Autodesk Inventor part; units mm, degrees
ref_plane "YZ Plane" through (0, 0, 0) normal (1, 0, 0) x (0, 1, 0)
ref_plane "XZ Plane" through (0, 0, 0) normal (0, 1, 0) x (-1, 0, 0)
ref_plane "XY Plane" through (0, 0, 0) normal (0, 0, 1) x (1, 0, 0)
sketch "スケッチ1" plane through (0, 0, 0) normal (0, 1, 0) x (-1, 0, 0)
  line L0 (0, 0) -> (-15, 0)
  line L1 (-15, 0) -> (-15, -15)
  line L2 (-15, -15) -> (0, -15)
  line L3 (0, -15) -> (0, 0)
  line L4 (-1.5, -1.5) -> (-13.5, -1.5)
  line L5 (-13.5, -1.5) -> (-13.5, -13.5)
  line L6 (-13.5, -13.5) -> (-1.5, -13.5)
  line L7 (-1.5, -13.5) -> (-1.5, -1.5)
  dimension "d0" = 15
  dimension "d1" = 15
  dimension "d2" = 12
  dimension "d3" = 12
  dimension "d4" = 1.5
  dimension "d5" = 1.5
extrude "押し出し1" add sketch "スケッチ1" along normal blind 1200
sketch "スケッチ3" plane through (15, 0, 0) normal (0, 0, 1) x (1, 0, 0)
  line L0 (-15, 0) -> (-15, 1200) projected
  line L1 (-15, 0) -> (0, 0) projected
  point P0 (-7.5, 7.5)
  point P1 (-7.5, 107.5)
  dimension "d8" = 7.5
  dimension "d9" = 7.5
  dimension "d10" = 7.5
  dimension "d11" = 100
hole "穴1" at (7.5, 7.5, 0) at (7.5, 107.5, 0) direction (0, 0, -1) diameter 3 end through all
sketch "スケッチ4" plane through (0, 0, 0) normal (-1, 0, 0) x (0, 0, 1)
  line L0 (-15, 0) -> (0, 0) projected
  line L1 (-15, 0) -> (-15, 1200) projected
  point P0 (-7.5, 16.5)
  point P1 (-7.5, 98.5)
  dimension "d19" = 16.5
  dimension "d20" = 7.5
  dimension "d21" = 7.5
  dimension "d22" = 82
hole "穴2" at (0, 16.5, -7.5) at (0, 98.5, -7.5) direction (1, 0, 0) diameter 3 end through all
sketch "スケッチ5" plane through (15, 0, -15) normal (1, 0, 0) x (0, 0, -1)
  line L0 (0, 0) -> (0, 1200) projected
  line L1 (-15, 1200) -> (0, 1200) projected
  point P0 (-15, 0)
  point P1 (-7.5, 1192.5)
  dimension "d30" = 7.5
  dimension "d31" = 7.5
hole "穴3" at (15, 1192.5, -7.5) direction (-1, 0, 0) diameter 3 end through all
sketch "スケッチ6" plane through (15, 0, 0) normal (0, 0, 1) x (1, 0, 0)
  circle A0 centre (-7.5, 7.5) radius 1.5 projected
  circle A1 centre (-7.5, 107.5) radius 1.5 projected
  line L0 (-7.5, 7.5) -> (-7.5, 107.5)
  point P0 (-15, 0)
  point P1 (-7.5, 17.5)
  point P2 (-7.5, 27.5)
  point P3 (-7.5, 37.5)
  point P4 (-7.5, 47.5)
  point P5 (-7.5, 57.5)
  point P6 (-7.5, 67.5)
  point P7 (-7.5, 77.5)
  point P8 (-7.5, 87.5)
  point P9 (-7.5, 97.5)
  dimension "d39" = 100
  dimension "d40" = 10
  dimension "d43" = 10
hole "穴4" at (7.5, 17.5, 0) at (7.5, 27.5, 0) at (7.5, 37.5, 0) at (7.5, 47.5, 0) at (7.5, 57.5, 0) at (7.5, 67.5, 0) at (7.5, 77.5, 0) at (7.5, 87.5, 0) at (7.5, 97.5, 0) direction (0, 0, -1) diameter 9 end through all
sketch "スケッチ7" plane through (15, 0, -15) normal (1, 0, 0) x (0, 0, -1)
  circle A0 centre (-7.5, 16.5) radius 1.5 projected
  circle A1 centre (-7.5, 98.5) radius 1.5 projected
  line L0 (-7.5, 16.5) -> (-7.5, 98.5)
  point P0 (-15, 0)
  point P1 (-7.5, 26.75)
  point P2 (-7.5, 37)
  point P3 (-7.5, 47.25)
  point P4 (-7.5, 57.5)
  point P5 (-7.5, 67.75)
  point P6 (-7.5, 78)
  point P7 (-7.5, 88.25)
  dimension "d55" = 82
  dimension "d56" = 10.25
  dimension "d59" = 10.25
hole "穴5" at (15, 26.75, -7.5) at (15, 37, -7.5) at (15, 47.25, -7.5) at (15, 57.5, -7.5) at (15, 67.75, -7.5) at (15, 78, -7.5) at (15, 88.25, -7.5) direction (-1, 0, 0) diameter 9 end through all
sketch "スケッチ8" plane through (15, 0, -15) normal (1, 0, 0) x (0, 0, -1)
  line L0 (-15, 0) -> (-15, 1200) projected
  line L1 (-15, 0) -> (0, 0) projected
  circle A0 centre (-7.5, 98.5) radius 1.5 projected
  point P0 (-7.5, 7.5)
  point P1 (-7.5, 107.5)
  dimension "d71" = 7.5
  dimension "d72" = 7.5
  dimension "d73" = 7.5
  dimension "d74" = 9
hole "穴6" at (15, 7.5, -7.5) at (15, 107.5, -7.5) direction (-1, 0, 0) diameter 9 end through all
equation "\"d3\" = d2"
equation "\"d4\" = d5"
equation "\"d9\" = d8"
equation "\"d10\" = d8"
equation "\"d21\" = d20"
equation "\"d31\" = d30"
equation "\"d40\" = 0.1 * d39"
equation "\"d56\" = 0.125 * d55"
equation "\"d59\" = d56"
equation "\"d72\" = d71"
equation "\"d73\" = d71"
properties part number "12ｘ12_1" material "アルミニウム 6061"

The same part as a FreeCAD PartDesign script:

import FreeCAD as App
import Part
import Sketcher
from FreeCAD import Vector

doc = App.newDocument("Part")
body = doc.addObject("PartDesign::Body", "Body")

# Sketch on XZ plane
sketch1 = doc.addObject("Sketcher::SketchObject", "Sketch")
body.addObject(sketch1)
sketch1.AttachmentSupport = (doc.XZ_Plane, [""])
sketch1.MapMode = "FlatFace"
sketch1.addGeometry(Part.LineSegment(Vector(0, -15, 0), Vector(0, 0, 0)), False)
sketch1.addGeometry(Part.LineSegment(Vector(0, 0, 0), Vector(15, 0, 0)), False)
sketch1.addGeometry(Part.LineSegment(Vector(15, 0, 0), Vector(15, -15, 0)), False)
sketch1.addGeometry(Part.LineSegment(Vector(15, -15, 0), Vector(0, -15, 0)), False)
sketch1.addGeometry(Part.LineSegment(Vector(13.5, -1.5, 0), Vector(1.5, -1.5, 0)), False)
sketch1.addGeometry(Part.LineSegment(Vector(1.5, -1.5, 0), Vector(1.5, -13.5, 0)), False)
sketch1.addGeometry(Part.LineSegment(Vector(1.5, -13.5, 0), Vector(13.5, -13.5, 0)), False)
sketch1.addGeometry(Part.LineSegment(Vector(13.5, -13.5, 0), Vector(13.5, -1.5, 0)), False)
sketch1.addConstraint(Sketcher.Constraint("Coincident", 0, 2, 1, 1))
sketch1.addConstraint(Sketcher.Constraint("Coincident", 1, 2, 2, 1))
sketch1.addConstraint(Sketcher.Constraint("Coincident", 2, 2, 3, 1))
sketch1.addConstraint(Sketcher.Constraint("Coincident", 3, 2, 0, 1))
sketch1.addConstraint(Sketcher.Constraint("Coincident", 4, 2, 5, 1))
sketch1.addConstraint(Sketcher.Constraint("Coincident", 5, 2, 6, 1))
sketch1.addConstraint(Sketcher.Constraint("Coincident", 6, 2, 7, 1))
sketch1.addConstraint(Sketcher.Constraint("Coincident", 7, 2, 4, 1))
sketch1.addConstraint(Sketcher.Constraint("Vertical", 0))
sketch1.addConstraint(Sketcher.Constraint("Horizontal", 1))
sketch1.addConstraint(Sketcher.Constraint("Vertical", 2))
sketch1.addConstraint(Sketcher.Constraint("Horizontal", 3))
sketch1.addConstraint(Sketcher.Constraint("Horizontal", 4))
sketch1.addConstraint(Sketcher.Constraint("Vertical", 5))
sketch1.addConstraint(Sketcher.Constraint("Horizontal", 6))
sketch1.addConstraint(Sketcher.Constraint("Vertical", 7))
sketch1.addConstraint(Sketcher.Constraint("Coincident", 0, 2, -1, 1))
sketch1.addConstraint(Sketcher.Constraint("Equal", 3, 0))
sketch1.addConstraint(Sketcher.Constraint("Equal", 6, 5))
sketch1.addConstraint(Sketcher.Constraint("DistanceX", 1, 1, 1, 2, 15.0))
sketch1.addConstraint(Sketcher.Constraint("DistanceX", 4, 2, 4, 1, 12.0))
sketch1.addConstraint(Sketcher.Constraint("DistanceX", -1, 1, 4, 2, 1.5))
sketch1.addConstraint(Sketcher.Constraint("DistanceY", 4, 2, -1, 1, 1.5))
pad1 = doc.addObject("PartDesign::Pad", "Pad")
body.addObject(pad1)
pad1.Profile = sketch1
pad1.Length = 1200
pad1.Reversed = True

# Sketch on XY plane
sketch2 = doc.addObject("Sketcher::SketchObject", "Sketch001")
body.addObject(sketch2)
sketch2.AttachmentSupport = (doc.XY_Plane, [""])
sketch2.MapMode = "FlatFace"
sketch2.addGeometry(Part.Circle(Vector(7.5, 7.5, 0), Vector(0, 0, 1), 1.5), False)
sketch2.addGeometry(Part.Circle(Vector(7.5, 107.5, 0), Vector(0, 0, 1), 1.5), False)
sketch2.addConstraint(Sketcher.Constraint("Equal", 0, 1))
sketch2.addConstraint(Sketcher.Constraint("Vertical", 0, 3, 1, 3))
sketch2.addConstraint(Sketcher.Constraint("Diameter", 0, 3.0))
sketch2.addConstraint(Sketcher.Constraint("DistanceY", 0, 3, 1, 3, 100.0))
sketch2.addConstraint(Sketcher.Constraint("DistanceX", -1, 1, 0, 3, 7.5))
sketch2.addConstraint(Sketcher.Constraint("DistanceY", -1, 1, 0, 3, 7.5))
doc.recompute()
hole = doc.addObject("PartDesign::Hole", "Hole")
body.addObject(hole)
hole.Profile = sketch2
hole.ThreadType = "None"
hole.Diameter = 3
hole.DepthType = "ThroughAll"

# Sketch on YZ plane
sketch3 = doc.addObject("Sketcher::SketchObject", "Sketch002")
body.addObject(sketch3)
sketch3.AttachmentSupport = (doc.YZ_Plane, [""])
sketch3.MapMode = "FlatFace"
sketch3.addGeometry(Part.Circle(Vector(16.5, -7.5, 0), Vector(0, 0, 1), 1.5), False)
sketch3.addGeometry(Part.Circle(Vector(98.5, -7.5, 0), Vector(0, 0, 1), 1.5), False)
sketch3.addConstraint(Sketcher.Constraint("Equal", 0, 1))
sketch3.addConstraint(Sketcher.Constraint("Horizontal", 0, 3, 1, 3))
sketch3.addConstraint(Sketcher.Constraint("Diameter", 0, 3.0))
sketch3.addConstraint(Sketcher.Constraint("DistanceX", 0, 3, 1, 3, 82.0))
sketch3.addConstraint(Sketcher.Constraint("DistanceX", -1, 1, 0, 3, 16.5))
sketch3.addConstraint(Sketcher.Constraint("DistanceY", 0, 3, -1, 1, 7.5))
doc.recompute()
hole2 = doc.addObject("PartDesign::Hole", "Hole001")
body.addObject(hole2)
hole2.Profile = sketch3
hole2.ThreadType = "None"
hole2.Diameter = 3
hole2.DepthType = "ThroughAll"
hole2.Reversed = True

# Sketch on YZ plane
sketch4 = doc.addObject("Sketcher::SketchObject", "Sketch003")
body.addObject(sketch4)
sketch4.AttachmentSupport = (doc.YZ_Plane, [""])
sketch4.MapMode = "FlatFace"
sketch4.AttachmentOffset = App.Placement(Vector(0, 0, 15), App.Rotation())
sketch4.addGeometry(Part.Circle(Vector(1192.5, -7.5, 0), Vector(0, 0, 1), 1.5), False)
sketch4.addConstraint(Sketcher.Constraint("Diameter", 0, 3.0))
sketch4.addConstraint(Sketcher.Constraint("DistanceX", -1, 1, 0, 3, 1192.5))
sketch4.addConstraint(Sketcher.Constraint("DistanceY", 0, 3, -1, 1, 7.5))
doc.recompute()
hole3 = doc.addObject("PartDesign::Hole", "Hole002")
body.addObject(hole3)
hole3.Profile = sketch4
hole3.ThreadType = "None"
hole3.Diameter = 3
hole3.DepthType = "ThroughAll"

# Sketch on XY plane
sketch5 = doc.addObject("Sketcher::SketchObject", "Sketch004")
body.addObject(sketch5)
sketch5.AttachmentSupport = (doc.XY_Plane, [""])
sketch5.MapMode = "FlatFace"
sketch5.addGeometry(Part.Circle(Vector(7.5, 17.5, 0), Vector(0, 0, 1), 4.5), False)
sketch5.addGeometry(Part.Circle(Vector(7.5, 27.5, 0), Vector(0, 0, 1), 4.5), False)
sketch5.addGeometry(Part.Circle(Vector(7.5, 37.5, 0), Vector(0, 0, 1), 4.5), False)
sketch5.addGeometry(Part.Circle(Vector(7.5, 47.5, 0), Vector(0, 0, 1), 4.5), False)
sketch5.addGeometry(Part.Circle(Vector(7.5, 57.5, 0), Vector(0, 0, 1), 4.5), False)
sketch5.addGeometry(Part.Circle(Vector(7.5, 67.5, 0), Vector(0, 0, 1), 4.5), False)
sketch5.addGeometry(Part.Circle(Vector(7.5, 77.5, 0), Vector(0, 0, 1), 4.5), False)
sketch5.addGeometry(Part.Circle(Vector(7.5, 87.5, 0), Vector(0, 0, 1), 4.5), False)
sketch5.addGeometry(Part.Circle(Vector(7.5, 97.5, 0), Vector(0, 0, 1), 4.5), False)
sketch5.addConstraint(Sketcher.Constraint("Equal", 0, 1))
sketch5.addConstraint(Sketcher.Constraint("Equal", 1, 2))
sketch5.addConstraint(Sketcher.Constraint("Equal", 2, 3))
sketch5.addConstraint(Sketcher.Constraint("Equal", 3, 4))
sketch5.addConstraint(Sketcher.Constraint("Equal", 4, 5))
sketch5.addConstraint(Sketcher.Constraint("Equal", 5, 6))
sketch5.addConstraint(Sketcher.Constraint("Equal", 6, 7))
sketch5.addConstraint(Sketcher.Constraint("Equal", 7, 8))
sketch5.addConstraint(Sketcher.Constraint("Vertical", 0, 3, 1, 3))
sketch5.addConstraint(Sketcher.Constraint("Vertical", 1, 3, 2, 3))
sketch5.addConstraint(Sketcher.Constraint("Vertical", 2, 3, 3, 3))
sketch5.addConstraint(Sketcher.Constraint("Vertical", 3, 3, 4, 3))
sketch5.addConstraint(Sketcher.Constraint("Vertical", 4, 3, 5, 3))
sketch5.addConstraint(Sketcher.Constraint("Vertical", 5, 3, 6, 3))
sketch5.addConstraint(Sketcher.Constraint("Vertical", 6, 3, 7, 3))
sketch5.addConstraint(Sketcher.Constraint("Vertical", 7, 3, 8, 3))
sketch5.addConstraint(Sketcher.Constraint("Diameter", 0, 9.0))
sketch5.addConstraint(Sketcher.Constraint("DistanceY", 0, 3, 1, 3, 10.0))
sketch5.addConstraint(Sketcher.Constraint("DistanceY", 1, 3, 2, 3, 10.0))
sketch5.addConstraint(Sketcher.Constraint("DistanceY", 2, 3, 3, 3, 10.0))
sketch5.addConstraint(Sketcher.Constraint("DistanceY", 3, 3, 4, 3, 10.0))
sketch5.addConstraint(Sketcher.Constraint("DistanceY", 4, 3, 5, 3, 10.0))
sketch5.addConstraint(Sketcher.Constraint("DistanceY", 5, 3, 6, 3, 10.0))
sketch5.addConstraint(Sketcher.Constraint("DistanceY", 6, 3, 7, 3, 10.0))
sketch5.addConstraint(Sketcher.Constraint("DistanceY", 7, 3, 8, 3, 10.0))
sketch5.addConstraint(Sketcher.Constraint("DistanceX", -1, 1, 0, 3, 7.5))
sketch5.addConstraint(Sketcher.Constraint("DistanceY", -1, 1, 0, 3, 17.5))
doc.recompute()
hole4 = doc.addObject("PartDesign::Hole", "Hole003")
body.addObject(hole4)
hole4.Profile = sketch5
hole4.ThreadType = "None"
hole4.Diameter = 9
hole4.DepthType = "ThroughAll"

# Sketch on YZ plane
sketch6 = doc.addObject("Sketcher::SketchObject", "Sketch005")
body.addObject(sketch6)
sketch6.AttachmentSupport = (doc.YZ_Plane, [""])
sketch6.MapMode = "FlatFace"
sketch6.AttachmentOffset = App.Placement(Vector(0, 0, 15), App.Rotation())
sketch6.addGeometry(Part.Circle(Vector(26.75, -7.5, 0), Vector(0, 0, 1), 4.5), False)
sketch6.addGeometry(Part.Circle(Vector(37, -7.5, 0), Vector(0, 0, 1), 4.5), False)
sketch6.addGeometry(Part.Circle(Vector(47.25, -7.5, 0), Vector(0, 0, 1), 4.5), False)
sketch6.addGeometry(Part.Circle(Vector(57.5, -7.5, 0), Vector(0, 0, 1), 4.5), False)
sketch6.addGeometry(Part.Circle(Vector(67.75, -7.5, 0), Vector(0, 0, 1), 4.5), False)
sketch6.addGeometry(Part.Circle(Vector(78, -7.5, 0), Vector(0, 0, 1), 4.5), False)
sketch6.addGeometry(Part.Circle(Vector(88.25, -7.5, 0), Vector(0, 0, 1), 4.5), False)
sketch6.addConstraint(Sketcher.Constraint("Equal", 0, 1))
sketch6.addConstraint(Sketcher.Constraint("Equal", 1, 2))
sketch6.addConstraint(Sketcher.Constraint("Equal", 2, 3))
sketch6.addConstraint(Sketcher.Constraint("Equal", 3, 4))
sketch6.addConstraint(Sketcher.Constraint("Equal", 4, 5))
sketch6.addConstraint(Sketcher.Constraint("Equal", 5, 6))
sketch6.addConstraint(Sketcher.Constraint("Horizontal", 0, 3, 1, 3))
sketch6.addConstraint(Sketcher.Constraint("Horizontal", 1, 3, 2, 3))
sketch6.addConstraint(Sketcher.Constraint("Horizontal", 2, 3, 3, 3))
sketch6.addConstraint(Sketcher.Constraint("Horizontal", 3, 3, 4, 3))
sketch6.addConstraint(Sketcher.Constraint("Horizontal", 4, 3, 5, 3))
sketch6.addConstraint(Sketcher.Constraint("Horizontal", 5, 3, 6, 3))
sketch6.addConstraint(Sketcher.Constraint("Diameter", 0, 9.0))
sketch6.addConstraint(Sketcher.Constraint("DistanceX", -1, 1, 1, 3, 37.0))
sketch6.addConstraint(Sketcher.Constraint("DistanceX", -1, 1, 5, 3, 78.0))
sketch6.addConstraint(Sketcher.Constraint("DistanceX", 0, 3, 4, 3, 41.0))
sketch6.addConstraint(Sketcher.Constraint("DistanceX", 2, 3, 6, 3, 41.0))
sketch6.addConstraint(Sketcher.Constraint("DistanceY", 0, 3, -1, 1, 7.5))
sketch6.addConstraint(Sketcher.Constraint("DistanceX", -1, 1, 3, 3, 57.5))
sketch6.addConstraint(Sketcher.Constraint("DistanceX", 0, 3, 2, 3, 20.5))
sketch6.addConstraint(Sketcher.Constraint("DistanceX", -1, 1, 0, 3, 26.75))
doc.recompute()
hole5 = doc.addObject("PartDesign::Hole", "Hole004")
body.addObject(hole5)
hole5.Profile = sketch6
hole5.ThreadType = "None"
hole5.Diameter = 9
hole5.DepthType = "ThroughAll"

# Sketch on YZ plane
sketch7 = doc.addObject("Sketcher::SketchObject", "Sketch006")
body.addObject(sketch7)
sketch7.AttachmentSupport = (doc.YZ_Plane, [""])
sketch7.MapMode = "FlatFace"
sketch7.AttachmentOffset = App.Placement(Vector(0, 0, 15), App.Rotation())
sketch7.addGeometry(Part.Circle(Vector(7.5, -7.5, 0), Vector(0, 0, 1), 4.5), False)
sketch7.addGeometry(Part.Circle(Vector(107.5, -7.5, 0), Vector(0, 0, 1), 4.5), False)
sketch7.addConstraint(Sketcher.Constraint("Equal", 0, 1))
sketch7.addConstraint(Sketcher.Constraint("Horizontal", 0, 3, 1, 3))
sketch7.addConstraint(Sketcher.Constraint("Diameter", 0, 9.0))
sketch7.addConstraint(Sketcher.Constraint("DistanceX", 0, 3, 1, 3, 100.0))
sketch7.addConstraint(Sketcher.Constraint("DistanceX", -1, 1, 0, 3, 7.5))
sketch7.addConstraint(Sketcher.Constraint("DistanceY", 0, 3, -1, 1, 7.5))
doc.recompute()
hole6 = doc.addObject("PartDesign::Hole", "Hole005")
body.addObject(hole6)
hole6.Profile = sketch7
hole6.ThreadType = "None"
hole6.Diameter = 9
hole6.DepthType = "ThroughAll"

doc.recompute()
